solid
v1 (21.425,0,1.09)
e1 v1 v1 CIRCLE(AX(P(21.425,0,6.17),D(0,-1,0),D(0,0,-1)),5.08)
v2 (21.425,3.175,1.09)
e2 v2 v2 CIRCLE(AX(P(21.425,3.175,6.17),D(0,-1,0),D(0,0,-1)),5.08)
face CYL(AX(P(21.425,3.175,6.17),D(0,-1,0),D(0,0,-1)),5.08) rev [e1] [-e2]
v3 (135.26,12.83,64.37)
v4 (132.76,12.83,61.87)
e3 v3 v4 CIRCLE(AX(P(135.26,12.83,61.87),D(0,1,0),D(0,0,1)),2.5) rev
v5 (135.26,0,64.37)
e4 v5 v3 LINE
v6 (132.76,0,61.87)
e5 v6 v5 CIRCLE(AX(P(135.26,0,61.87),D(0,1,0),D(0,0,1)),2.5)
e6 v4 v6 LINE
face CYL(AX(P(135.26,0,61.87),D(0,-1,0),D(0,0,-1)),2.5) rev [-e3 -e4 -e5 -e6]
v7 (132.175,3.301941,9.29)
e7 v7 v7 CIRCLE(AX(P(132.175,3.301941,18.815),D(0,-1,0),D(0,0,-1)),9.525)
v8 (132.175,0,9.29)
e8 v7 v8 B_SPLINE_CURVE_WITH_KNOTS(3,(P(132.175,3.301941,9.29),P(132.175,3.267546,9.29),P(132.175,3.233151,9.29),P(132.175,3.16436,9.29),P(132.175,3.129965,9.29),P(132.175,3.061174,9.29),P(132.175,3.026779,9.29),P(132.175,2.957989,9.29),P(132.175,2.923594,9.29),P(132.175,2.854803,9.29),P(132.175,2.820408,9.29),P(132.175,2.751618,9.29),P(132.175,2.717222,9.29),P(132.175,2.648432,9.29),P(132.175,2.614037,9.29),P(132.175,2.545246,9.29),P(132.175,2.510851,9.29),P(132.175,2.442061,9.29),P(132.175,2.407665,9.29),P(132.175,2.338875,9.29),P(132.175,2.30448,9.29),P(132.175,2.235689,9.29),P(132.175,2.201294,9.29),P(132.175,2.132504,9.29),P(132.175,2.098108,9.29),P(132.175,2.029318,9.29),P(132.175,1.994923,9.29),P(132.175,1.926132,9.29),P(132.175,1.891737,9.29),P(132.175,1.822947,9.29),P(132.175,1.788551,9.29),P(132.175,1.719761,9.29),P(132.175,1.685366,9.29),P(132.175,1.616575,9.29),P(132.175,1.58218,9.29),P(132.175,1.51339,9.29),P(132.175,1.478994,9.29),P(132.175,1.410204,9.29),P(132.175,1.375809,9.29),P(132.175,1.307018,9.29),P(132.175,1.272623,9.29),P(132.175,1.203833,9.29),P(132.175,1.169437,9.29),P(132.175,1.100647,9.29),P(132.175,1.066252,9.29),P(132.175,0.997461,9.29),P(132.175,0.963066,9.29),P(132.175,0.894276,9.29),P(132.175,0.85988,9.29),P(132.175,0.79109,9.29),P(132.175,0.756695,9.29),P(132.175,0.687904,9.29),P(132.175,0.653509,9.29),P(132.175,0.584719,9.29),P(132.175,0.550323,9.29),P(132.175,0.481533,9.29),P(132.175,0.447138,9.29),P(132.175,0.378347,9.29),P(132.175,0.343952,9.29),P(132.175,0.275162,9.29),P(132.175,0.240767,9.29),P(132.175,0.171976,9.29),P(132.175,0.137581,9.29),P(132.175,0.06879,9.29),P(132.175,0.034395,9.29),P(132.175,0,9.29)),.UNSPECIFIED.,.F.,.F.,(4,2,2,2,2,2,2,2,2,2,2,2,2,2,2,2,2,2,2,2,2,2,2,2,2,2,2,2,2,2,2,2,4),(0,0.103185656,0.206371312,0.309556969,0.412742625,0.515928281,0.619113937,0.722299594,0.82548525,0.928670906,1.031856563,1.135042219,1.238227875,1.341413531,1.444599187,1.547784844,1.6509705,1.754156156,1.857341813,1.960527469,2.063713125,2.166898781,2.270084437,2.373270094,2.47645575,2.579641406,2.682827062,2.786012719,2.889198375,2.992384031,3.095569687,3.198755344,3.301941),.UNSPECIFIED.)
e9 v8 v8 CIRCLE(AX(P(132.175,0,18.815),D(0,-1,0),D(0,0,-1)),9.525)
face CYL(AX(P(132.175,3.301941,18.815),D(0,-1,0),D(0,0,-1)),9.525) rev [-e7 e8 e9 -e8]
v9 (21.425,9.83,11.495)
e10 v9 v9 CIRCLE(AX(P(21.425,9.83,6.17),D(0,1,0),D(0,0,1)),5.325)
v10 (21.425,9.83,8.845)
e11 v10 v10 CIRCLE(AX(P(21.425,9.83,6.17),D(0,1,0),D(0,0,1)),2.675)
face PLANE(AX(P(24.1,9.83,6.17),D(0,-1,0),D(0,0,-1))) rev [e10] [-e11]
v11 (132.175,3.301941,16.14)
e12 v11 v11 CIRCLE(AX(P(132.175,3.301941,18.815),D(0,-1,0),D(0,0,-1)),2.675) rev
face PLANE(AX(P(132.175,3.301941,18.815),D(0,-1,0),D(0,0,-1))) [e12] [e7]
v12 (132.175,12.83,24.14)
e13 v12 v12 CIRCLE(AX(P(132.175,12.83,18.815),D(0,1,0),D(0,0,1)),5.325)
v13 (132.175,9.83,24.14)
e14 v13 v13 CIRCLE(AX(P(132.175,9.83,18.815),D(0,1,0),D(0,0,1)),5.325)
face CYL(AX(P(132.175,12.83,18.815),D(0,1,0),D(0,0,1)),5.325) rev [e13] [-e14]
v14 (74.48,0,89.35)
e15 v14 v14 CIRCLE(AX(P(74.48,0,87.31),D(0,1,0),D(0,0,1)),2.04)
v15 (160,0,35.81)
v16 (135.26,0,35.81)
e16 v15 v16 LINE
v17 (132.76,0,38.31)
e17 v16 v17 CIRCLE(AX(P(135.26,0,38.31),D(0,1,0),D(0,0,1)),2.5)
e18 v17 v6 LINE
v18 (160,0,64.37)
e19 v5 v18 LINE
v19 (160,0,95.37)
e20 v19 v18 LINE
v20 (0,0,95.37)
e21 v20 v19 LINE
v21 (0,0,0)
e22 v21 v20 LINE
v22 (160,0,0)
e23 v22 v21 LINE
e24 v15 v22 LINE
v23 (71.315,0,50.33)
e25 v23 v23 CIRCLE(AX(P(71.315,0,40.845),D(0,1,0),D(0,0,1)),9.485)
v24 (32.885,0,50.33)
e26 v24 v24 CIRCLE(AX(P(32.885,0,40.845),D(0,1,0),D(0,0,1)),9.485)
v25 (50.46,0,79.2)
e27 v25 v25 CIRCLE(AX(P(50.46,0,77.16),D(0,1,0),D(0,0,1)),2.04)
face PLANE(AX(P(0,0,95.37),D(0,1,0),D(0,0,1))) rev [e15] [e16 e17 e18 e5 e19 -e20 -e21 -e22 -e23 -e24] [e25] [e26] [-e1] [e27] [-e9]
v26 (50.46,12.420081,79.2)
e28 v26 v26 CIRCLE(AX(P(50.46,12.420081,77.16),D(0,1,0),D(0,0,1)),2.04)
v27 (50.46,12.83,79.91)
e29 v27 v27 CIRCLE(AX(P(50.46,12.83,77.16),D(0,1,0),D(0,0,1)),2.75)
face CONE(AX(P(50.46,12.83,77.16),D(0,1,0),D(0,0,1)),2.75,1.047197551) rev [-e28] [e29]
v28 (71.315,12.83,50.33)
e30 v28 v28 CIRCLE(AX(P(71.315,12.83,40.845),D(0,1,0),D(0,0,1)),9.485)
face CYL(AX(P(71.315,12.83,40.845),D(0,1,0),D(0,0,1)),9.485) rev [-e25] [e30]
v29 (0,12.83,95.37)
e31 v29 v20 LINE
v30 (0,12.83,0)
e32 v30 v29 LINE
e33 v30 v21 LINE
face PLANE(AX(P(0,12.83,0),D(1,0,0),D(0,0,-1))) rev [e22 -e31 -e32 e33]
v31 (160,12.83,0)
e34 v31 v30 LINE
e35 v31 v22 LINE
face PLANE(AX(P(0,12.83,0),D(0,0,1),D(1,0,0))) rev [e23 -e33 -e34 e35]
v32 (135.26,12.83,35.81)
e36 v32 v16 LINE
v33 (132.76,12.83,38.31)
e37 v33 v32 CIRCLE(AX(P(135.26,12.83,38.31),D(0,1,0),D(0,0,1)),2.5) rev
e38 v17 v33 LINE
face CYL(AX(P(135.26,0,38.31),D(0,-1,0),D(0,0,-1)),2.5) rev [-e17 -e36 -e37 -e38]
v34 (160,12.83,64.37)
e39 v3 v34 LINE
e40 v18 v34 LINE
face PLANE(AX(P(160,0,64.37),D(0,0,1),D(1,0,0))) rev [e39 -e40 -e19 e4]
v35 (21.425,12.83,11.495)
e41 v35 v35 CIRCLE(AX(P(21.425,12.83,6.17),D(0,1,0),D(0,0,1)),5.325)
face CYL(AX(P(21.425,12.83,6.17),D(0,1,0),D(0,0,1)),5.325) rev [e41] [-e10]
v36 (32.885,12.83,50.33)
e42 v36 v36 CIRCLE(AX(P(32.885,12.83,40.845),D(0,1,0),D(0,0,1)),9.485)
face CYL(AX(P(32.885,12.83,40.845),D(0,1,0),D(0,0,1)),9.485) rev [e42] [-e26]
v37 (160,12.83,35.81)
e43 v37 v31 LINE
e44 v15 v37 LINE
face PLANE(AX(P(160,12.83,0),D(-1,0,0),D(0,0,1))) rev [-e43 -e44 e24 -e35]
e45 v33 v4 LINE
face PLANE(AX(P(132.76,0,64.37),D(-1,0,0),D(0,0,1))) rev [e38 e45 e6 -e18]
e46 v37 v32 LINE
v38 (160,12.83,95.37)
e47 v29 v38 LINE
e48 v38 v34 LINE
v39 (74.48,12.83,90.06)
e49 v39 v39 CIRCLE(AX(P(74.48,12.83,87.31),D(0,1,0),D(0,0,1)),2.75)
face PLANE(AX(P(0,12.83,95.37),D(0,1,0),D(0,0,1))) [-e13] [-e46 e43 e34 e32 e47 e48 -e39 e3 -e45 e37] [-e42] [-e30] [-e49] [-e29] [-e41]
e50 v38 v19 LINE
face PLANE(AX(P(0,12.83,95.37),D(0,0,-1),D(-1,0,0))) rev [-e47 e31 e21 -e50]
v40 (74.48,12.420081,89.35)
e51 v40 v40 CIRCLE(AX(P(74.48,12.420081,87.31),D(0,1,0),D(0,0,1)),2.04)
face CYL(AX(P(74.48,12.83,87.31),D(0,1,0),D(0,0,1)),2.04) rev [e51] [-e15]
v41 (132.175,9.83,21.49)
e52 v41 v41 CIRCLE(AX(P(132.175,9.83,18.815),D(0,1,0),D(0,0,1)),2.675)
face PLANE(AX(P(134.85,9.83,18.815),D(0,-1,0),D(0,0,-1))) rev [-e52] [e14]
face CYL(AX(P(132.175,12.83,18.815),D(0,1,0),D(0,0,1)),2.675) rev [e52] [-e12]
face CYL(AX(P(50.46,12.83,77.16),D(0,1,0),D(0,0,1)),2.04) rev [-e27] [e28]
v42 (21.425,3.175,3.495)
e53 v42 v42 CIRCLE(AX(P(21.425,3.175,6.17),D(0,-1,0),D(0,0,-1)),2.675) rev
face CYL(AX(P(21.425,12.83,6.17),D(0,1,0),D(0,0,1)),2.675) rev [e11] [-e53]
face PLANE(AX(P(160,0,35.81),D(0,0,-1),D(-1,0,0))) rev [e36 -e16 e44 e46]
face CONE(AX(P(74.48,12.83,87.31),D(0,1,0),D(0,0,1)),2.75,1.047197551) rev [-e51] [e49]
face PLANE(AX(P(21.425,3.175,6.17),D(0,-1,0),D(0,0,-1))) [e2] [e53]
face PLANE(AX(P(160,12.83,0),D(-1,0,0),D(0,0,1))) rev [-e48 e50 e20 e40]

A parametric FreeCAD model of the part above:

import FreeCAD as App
import Part
import Sketcher

V = App.Vector
Q = App.Units.Quantity


def edges_at(feature, points):
    """Names of the edges that pass closest to the given points."""
    edges = feature.Shape.Edges
    near = lambda p: min(range(len(edges)), key=lambda i: edges[i].distToShape(Part.Vertex(*p))[0])
    return sorted({f"Edge{near(p) + 1}" for p in points})


def add_polygon(sketch, points):
    """Adds a closed chain of lines whose ends are joined by coincident constraints."""
    first, n = sketch.GeometryCount, len(points)
    for a, b in zip(points, points[1:] + points[:1]):
        sketch.addGeometry(Part.LineSegment(App.Vector(*a, 0), App.Vector(*b, 0)), False)
    for i in range(n):
        sketch.addConstraint(Sketcher.Constraint("Coincident", first + i, 2, first + (i + 1) % n, 1))

doc = App.newDocument("Part")
params = doc.addObject("Spreadsheet::Sheet", "Params")
for row, (alias, value) in enumerate([
    ("pad1_length", "12.83 mm"),
    ("hole_diameter", "18.97 mm"),
    ("fillet_radius", "2.5 mm"),
    ("hole2_diameter", "5.35 mm"),
    ("hole2_cbore_diameter", "10.65 mm"),
    ("hole2_cbore_depth", "3 mm"),
    ("hole3_diameter", "4.08 mm"),
    ("hole3_csink_diameter", "5.5 mm"),
    ("sketch6_diameter", "0.75 in"),
    ("pocket2_length", "3.301941 mm"),
    ("sketch7_diameter", "0.4 in"),
    ("pocket3_length", "0.125 in"),
], start=1):
    params.set(f"A{row}", alias)
    params.set(f"B{row}", "=" + value)
    params.setAlias(f"B{row}", alias)

body = doc.addObject("PartDesign::Body", "Body")

# Sketch on XZ plane
sketch1 = body.newObject("Sketcher::SketchObject", "Sketch")
sketch1.AttachmentSupport = (doc.getObject("XZ_Plane"), [""])
sketch1.MapMode = "FlatFace"
add_polygon(sketch1, [(0, 0), (0, 95), (160, 95), (160, 0)])  # lines 0-3
sketch1.addConstraint([
    Sketcher.Constraint("Vertical", 0),
    Sketcher.Constraint("Horizontal", 1),
    Sketcher.Constraint("Vertical", 2),
    Sketcher.Constraint("Horizontal", 3),
    Sketcher.Constraint("Coincident", 3, 2, -1, 1),
    Sketcher.Constraint("DistanceX", 1, 1, 1, 2, Q("160 mm")),
    Sketcher.Constraint("DistanceY", 0, 1, 0, 2, Q("95.37 mm")),
])
pad1 = body.newObject("PartDesign::Pad", "Pad")
pad1.Profile = sketch1
pad1.setExpression("Length", "Params.pad1_length")
pad1.Reversed = True

# Sketch on XZ plane
sketch2 = body.newObject("Sketcher::SketchObject", "Sketch001")
sketch2.AttachmentSupport = (doc.getObject("XZ_Plane"), [""])
sketch2.MapMode = "FlatFace"
sketch2.AttachmentOffset = App.Placement(V(0, 0, -12.83), App.Rotation())
sketch2.addGeometry([
    Part.Circle(V(33, 41, 0), V(0, 0, 1), 9),
    Part.Circle(V(71, 41, 0), V(0, 0, 1), 9),
], False)
sketch2.addConstraint([
    Sketcher.Constraint("Equal", 0, 1),
    Sketcher.Constraint("Horizontal", 0, 3, 1, 3),
    Sketcher.Constraint("Diameter", 0, Q("18.97 mm")),
    Sketcher.Constraint("DistanceX", -1, 1, 0, 3, Q("32.885 mm")),
    Sketcher.Constraint("DistanceY", -1, 1, 0, 3, Q("40.845 mm")),
    Sketcher.Constraint("DistanceX", -1, 1, 1, 3, Q("71.315 mm")),
])
doc.recompute()
hole = body.newObject("PartDesign::Hole", "Hole")
hole.Profile = sketch2
hole.ThreadType = "None"
hole.setExpression("Diameter", "Params.hole_diameter")
hole.DepthType = "ThroughAll"
hole.Reversed = True

# Sketch on XZ plane
sketch3 = body.newObject("Sketcher::SketchObject", "Sketch002")
sketch3.AttachmentSupport = (doc.getObject("XZ_Plane"), [""])
sketch3.MapMode = "FlatFace"
sketch3.AttachmentOffset = App.Placement(V(0, 0, -12.83), App.Rotation())
add_polygon(sketch3, [(160, 64), (160, 36), (133, 36), (133, 64)])  # lines 0-3
sketch3.addConstraint([
    Sketcher.Constraint("Vertical", 0),
    Sketcher.Constraint("Horizontal", 1),
    Sketcher.Constraint("Vertical", 2),
    Sketcher.Constraint("Horizontal", 3),
    Sketcher.Constraint("DistanceX", 1, 2, 1, 1, Q("27.24 mm")),
    Sketcher.Constraint("DistanceY", 0, 2, 0, 1, Q("28.56 mm")),
    Sketcher.Constraint("DistanceX", -1, 1, 0, 2, Q("160 mm")),
    Sketcher.Constraint("DistanceY", -1, 1, 0, 2, Q("35.81 mm")),
])
pocket1 = body.newObject("PartDesign::Pocket", "Pocket")
pocket1.Profile = sketch3
pocket1.Type = "ThroughAll"
pocket1.Reversed = True
doc.recompute()

fillet = body.newObject("PartDesign::Fillet", "Fillet")
fillet.Base = (pocket1, edges_at(pocket1, [(132.76, 6.415, 64.37), (132.76, 6.415, 35.81)]))
fillet.setExpression("Radius", "Params.fillet_radius")

# Sketch on XZ plane
sketch4 = body.newObject("Sketcher::SketchObject", "Sketch003")
sketch4.AttachmentSupport = (doc.getObject("XZ_Plane"), [""])
sketch4.MapMode = "FlatFace"
sketch4.AttachmentOffset = App.Placement(V(0, 0, -12.83), App.Rotation())
sketch4.addGeometry([
    Part.Circle(V(21.4, 6.2, 0), V(0, 0, 1), 2.7),
    Part.Circle(V(132.2, 18.8, 0), V(0, 0, 1), 2.7),
], False)
sketch4.addConstraint([
    Sketcher.Constraint("Equal", 0, 1),
    Sketcher.Constraint("Diameter", 0, Q("5.35 mm")),
    Sketcher.Constraint("DistanceX", -1, 1, 0, 3, Q("21.425 mm")),
    Sketcher.Constraint("DistanceY", -1, 1, 0, 3, Q("6.17 mm")),
    Sketcher.Constraint("DistanceX", -1, 1, 1, 3, Q("132.175 mm")),
    Sketcher.Constraint("DistanceY", -1, 1, 1, 3, Q("18.815 mm")),
])
doc.recompute()
hole2 = body.newObject("PartDesign::Hole", "Hole001")
hole2.Profile = sketch4
hole2.ThreadType = "None"
hole2.setExpression("Diameter", "Params.hole2_diameter")
hole2.DepthType = "ThroughAll"
hole2.HoleCutType = "Counterbore"
hole2.setExpression("HoleCutDiameter", "Params.hole2_cbore_diameter")
hole2.setExpression("HoleCutDepth", "Params.hole2_cbore_depth")
hole2.Reversed = True

# Sketch on XZ plane
sketch5 = body.newObject("Sketcher::SketchObject", "Sketch004")
sketch5.AttachmentSupport = (doc.getObject("XZ_Plane"), [""])
sketch5.MapMode = "FlatFace"
sketch5.AttachmentOffset = App.Placement(V(0, 0, -12.83), App.Rotation())
sketch5.addGeometry([
    Part.Circle(V(50.5, 77.2, 0), V(0, 0, 1), 2),
    Part.Circle(V(74.5, 87.3, 0), V(0, 0, 1), 2),
], False)
sketch5.addConstraint([
    Sketcher.Constraint("Equal", 0, 1),
    Sketcher.Constraint("Diameter", 0, Q("4.08 mm")),
    Sketcher.Constraint("DistanceX", -1, 1, 0, 3, Q("50.46 mm")),
    Sketcher.Constraint("DistanceY", -1, 1, 0, 3, Q("77.16 mm")),
    Sketcher.Constraint("DistanceX", -1, 1, 1, 3, Q("74.48 mm")),
    Sketcher.Constraint("DistanceY", -1, 1, 1, 3, Q("87.31 mm")),
])
doc.recompute()
hole3 = body.newObject("PartDesign::Hole", "Hole002")
hole3.Profile = sketch5
hole3.ThreadType = "None"
hole3.setExpression("Diameter", "Params.hole3_diameter")
hole3.DepthType = "ThroughAll"
hole3.HoleCutType = "Countersink"
hole3.setExpression("HoleCutDiameter", "Params.hole3_csink_diameter")
hole3.HoleCutCountersinkAngle = 120
hole3.Reversed = True

# Sketch on XZ plane
sketch6 = body.newObject("Sketcher::SketchObject", "Sketch005")
sketch6.AttachmentSupport = (doc.getObject("XZ_Plane"), [""])
sketch6.MapMode = "FlatFace"
sketch6.addGeometry(Part.Circle(V(132, 19, 0), V(0, 0, 1), 10), False)
sketch6.addConstraint([
    Sketcher.Constraint("Diameter", 0, Q("0.75 in")),
    Sketcher.Constraint("DistanceX", -1, 1, 0, 3, Q("132.175 mm")),
    Sketcher.Constraint("DistanceY", -1, 1, 0, 3, Q("18.815 mm")),
])
sketch6.setExpression("Constraints[0]", "Params.sketch6_diameter")
pocket2 = body.newObject("PartDesign::Pocket", "Pocket001")
pocket2.Profile = sketch6
pocket2.setExpression("Length", "Params.pocket2_length")

# Sketch on XZ plane
sketch7 = body.newObject("Sketcher::SketchObject", "Sketch006")
sketch7.AttachmentSupport = (doc.getObject("XZ_Plane"), [""])
sketch7.MapMode = "FlatFace"
sketch7.addGeometry(Part.Circle(V(21, 6, 0), V(0, 0, 1), 5), False)
sketch7.addConstraint([
    Sketcher.Constraint("Diameter", 0, Q("0.4 in")),
    Sketcher.Constraint("DistanceX", -1, 1, 0, 3, Q("21.425 mm")),
    Sketcher.Constraint("DistanceY", -1, 1, 0, 3, Q("6.17 mm")),
])
sketch7.setExpression("Constraints[0]", "Params.sketch7_diameter")
pocket3 = body.newObject("PartDesign::Pocket", "Pocket002")
pocket3.Profile = sketch7
pocket3.setExpression("Length", "Params.pocket3_length")

doc.recompute()
